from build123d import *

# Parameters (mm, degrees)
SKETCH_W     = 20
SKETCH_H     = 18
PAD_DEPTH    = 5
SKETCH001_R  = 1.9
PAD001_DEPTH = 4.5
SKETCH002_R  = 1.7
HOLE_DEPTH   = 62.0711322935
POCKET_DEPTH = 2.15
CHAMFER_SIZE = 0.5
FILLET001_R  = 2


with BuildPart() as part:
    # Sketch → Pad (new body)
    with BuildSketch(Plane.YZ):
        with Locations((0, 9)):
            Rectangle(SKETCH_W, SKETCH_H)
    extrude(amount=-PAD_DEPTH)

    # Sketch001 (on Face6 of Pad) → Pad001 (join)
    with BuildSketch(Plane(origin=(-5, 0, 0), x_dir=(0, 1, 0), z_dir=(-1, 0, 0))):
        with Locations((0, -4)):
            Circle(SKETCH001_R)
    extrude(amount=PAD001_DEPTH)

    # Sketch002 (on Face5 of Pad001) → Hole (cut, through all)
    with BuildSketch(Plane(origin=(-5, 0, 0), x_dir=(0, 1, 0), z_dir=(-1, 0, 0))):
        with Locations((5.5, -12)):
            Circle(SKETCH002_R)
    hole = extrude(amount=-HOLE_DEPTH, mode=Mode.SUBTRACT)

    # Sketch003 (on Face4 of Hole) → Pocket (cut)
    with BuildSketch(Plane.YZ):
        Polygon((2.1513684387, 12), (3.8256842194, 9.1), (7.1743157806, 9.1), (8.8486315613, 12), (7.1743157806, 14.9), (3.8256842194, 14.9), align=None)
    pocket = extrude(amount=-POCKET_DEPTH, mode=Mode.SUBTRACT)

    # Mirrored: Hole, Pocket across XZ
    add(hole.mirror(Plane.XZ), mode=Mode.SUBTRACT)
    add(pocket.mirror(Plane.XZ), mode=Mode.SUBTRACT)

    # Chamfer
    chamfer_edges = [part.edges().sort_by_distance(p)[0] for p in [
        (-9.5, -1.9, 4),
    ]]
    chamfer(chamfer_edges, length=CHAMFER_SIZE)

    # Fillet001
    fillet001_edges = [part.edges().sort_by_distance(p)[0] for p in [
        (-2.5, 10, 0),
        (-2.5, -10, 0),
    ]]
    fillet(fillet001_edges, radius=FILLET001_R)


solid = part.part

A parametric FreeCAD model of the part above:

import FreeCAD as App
import Part
import Sketcher
from FreeCAD import Vector
Q = App.Units.Quantity


def edges_at(feature, points):
    """Names of the edges that pass closest to the given points."""
    edges = feature.Shape.Edges
    near = lambda p: min(range(len(edges)), key=lambda i: edges[i].distToShape(Part.Vertex(*p))[0])
    return sorted({f"Edge{near(p) + 1}" for p in points})


def add_polygon(sketch, points):
    """Adds a closed chain of lines whose ends are joined by coincident constraints."""
    first, n = sketch.GeometryCount, len(points)
    for a, b in zip(points, points[1:] + points[:1]):
        sketch.addGeometry(Part.LineSegment(App.Vector(*a, 0), App.Vector(*b, 0)), False)
    for i in range(n):
        sketch.addConstraint(Sketcher.Constraint("Coincident", first + i, 2, first + (i + 1) % n, 1))

doc = App.newDocument("Part")
body = doc.addObject("PartDesign::Body", "Body")

sketch1 = doc.addObject("Sketcher::SketchObject", "Sketch")
body.addObject(sketch1)
sketch1.AttachmentSupport = (doc.YZ_Plane, [""])
sketch1.MapMode = "FlatFace"
add_polygon(sketch1, [(-10, 18), (-10, 0), (10, 0), (10, 18)])
sketch1.addConstraint([
    Sketcher.Constraint("Vertical", 0),
    Sketcher.Constraint("Horizontal", 1),
    Sketcher.Constraint("Vertical", 2),
    Sketcher.Constraint("Horizontal", 3),
    Sketcher.Constraint("Symmetric", 0, 2, 1, 2, -1, 1),
    Sketcher.Constraint("DistanceX", 1, 1, 1, 2, 20.0),
    Sketcher.Constraint("DistanceY", 0, 2, 0, 1, 18.0),
])
pad1 = doc.addObject("PartDesign::Pad", "Pad")
body.addObject(pad1)
pad1.Profile = sketch1
pad1.Length = 5
pad1.Reversed = True

sketch2 = doc.addObject("Sketcher::SketchObject", "Sketch001")
body.addObject(sketch2)
sketch2.AttachmentSupport = (doc.YZ_Plane, [""])
sketch2.MapMode = "FlatFace"
sketch2.AttachmentOffset = App.Placement(Vector(0, 0, -5), App.Rotation())
sketch2.addGeometry(Part.Circle(Vector(0, 4, 0), Vector(0, 0, 1), 1.9), False)
sketch2.addConstraint([
    Sketcher.Constraint("PointOnObject", 0, 3, -2),
    Sketcher.Constraint("Diameter", 0, 3.8),
    Sketcher.Constraint("DistanceY", -1, 1, 0, 3, 4.0),
])
pad2 = doc.addObject("PartDesign::Pad", "Pad001")
body.addObject(pad2)
pad2.Profile = sketch2
pad2.Length = 4.5
pad2.Reversed = True

sketch3 = doc.addObject("Sketcher::SketchObject", "Sketch002")
body.addObject(sketch3)
sketch3.AttachmentSupport = (doc.YZ_Plane, [""])
sketch3.MapMode = "FlatFace"
sketch3.AttachmentOffset = App.Placement(Vector(0, 0, -5), App.Rotation())
sketch3.addGeometry(Part.Circle(Vector(5.5, 12, 0), Vector(0, 0, 1), 1.7), False)
sketch3.addConstraint([
    Sketcher.Constraint("Diameter", 0, 3.4),
    Sketcher.Constraint("DistanceY", -1, 1, 0, 3, 12.0),
    Sketcher.Constraint("DistanceX", -1, 1, 0, 3, 5.5),
])
pocket1 = doc.addObject("PartDesign::Pocket", "Pocket")
body.addObject(pocket1)
pocket1.Profile = sketch3
pocket1.Type = "ThroughAll"
pocket1.Reversed = True

sketch4 = doc.addObject("Sketcher::SketchObject", "Sketch003")
body.addObject(sketch4)
sketch4.AttachmentSupport = (doc.YZ_Plane, [""])
sketch4.MapMode = "FlatFace"
add_polygon(sketch4, [(2.151368, 12), (3.825684, 9.1), (7.174316, 9.1), (8.848632, 12), (7.174316, 14.9), (3.825684, 14.9)])
sketch4.addConstraint([
    Sketcher.Constraint("Horizontal", 1),
    Sketcher.Constraint("Horizontal", 4),
    Sketcher.Constraint("Parallel", 0, 3),
    Sketcher.Constraint("Parallel", 2, 5),
    Sketcher.Constraint("Horizontal", 2, 2, 5, 2),
    Sketcher.Constraint("Vertical", 1, 2, 3, 2),
    Sketcher.Constraint("Vertical", 0, 2, 4, 2),
    Sketcher.Constraint("Angle", 0, Q("-60 deg")),
    Sketcher.Constraint("DistanceY", -1, 1, 2, 2, 12.0),
    Sketcher.Constraint("DistanceY", -1, 1, 0, 2, 9.1),
    Sketcher.Constraint("DistanceX", 1, 1, 1, 2, 3.348632),
    Sketcher.Constraint("DistanceX", -1, 1, 2, 2, 8.848632),
])
pocket2 = doc.addObject("PartDesign::Pocket", "Pocket001")
body.addObject(pocket2)
pocket2.Profile = sketch4
pocket2.Length = 2.15
doc.recompute()

mirrored = doc.addObject("PartDesign::Mirrored", "Mirrored")
body.addObject(mirrored)
mirrored.Originals = [pocket1, pocket2]
mirrored.MirrorPlane = (doc.XZ_Plane, [""])
body.Tip = mirrored
doc.recompute()

chamfer = doc.addObject("PartDesign::Chamfer", "Chamfer")
body.addObject(chamfer)
chamfer.Base = (mirrored, edges_at(mirrored, [(-9.5, -1.9, 4)]))
chamfer.Size = 0.5
doc.recompute()

fillet = doc.addObject("PartDesign::Fillet", "Fillet")
body.addObject(fillet)
fillet.Base = (chamfer, edges_at(chamfer, [(-2.5, 10, 0), (-2.5, -10, 0)]))
fillet.Radius = 2

doc.recompute()
